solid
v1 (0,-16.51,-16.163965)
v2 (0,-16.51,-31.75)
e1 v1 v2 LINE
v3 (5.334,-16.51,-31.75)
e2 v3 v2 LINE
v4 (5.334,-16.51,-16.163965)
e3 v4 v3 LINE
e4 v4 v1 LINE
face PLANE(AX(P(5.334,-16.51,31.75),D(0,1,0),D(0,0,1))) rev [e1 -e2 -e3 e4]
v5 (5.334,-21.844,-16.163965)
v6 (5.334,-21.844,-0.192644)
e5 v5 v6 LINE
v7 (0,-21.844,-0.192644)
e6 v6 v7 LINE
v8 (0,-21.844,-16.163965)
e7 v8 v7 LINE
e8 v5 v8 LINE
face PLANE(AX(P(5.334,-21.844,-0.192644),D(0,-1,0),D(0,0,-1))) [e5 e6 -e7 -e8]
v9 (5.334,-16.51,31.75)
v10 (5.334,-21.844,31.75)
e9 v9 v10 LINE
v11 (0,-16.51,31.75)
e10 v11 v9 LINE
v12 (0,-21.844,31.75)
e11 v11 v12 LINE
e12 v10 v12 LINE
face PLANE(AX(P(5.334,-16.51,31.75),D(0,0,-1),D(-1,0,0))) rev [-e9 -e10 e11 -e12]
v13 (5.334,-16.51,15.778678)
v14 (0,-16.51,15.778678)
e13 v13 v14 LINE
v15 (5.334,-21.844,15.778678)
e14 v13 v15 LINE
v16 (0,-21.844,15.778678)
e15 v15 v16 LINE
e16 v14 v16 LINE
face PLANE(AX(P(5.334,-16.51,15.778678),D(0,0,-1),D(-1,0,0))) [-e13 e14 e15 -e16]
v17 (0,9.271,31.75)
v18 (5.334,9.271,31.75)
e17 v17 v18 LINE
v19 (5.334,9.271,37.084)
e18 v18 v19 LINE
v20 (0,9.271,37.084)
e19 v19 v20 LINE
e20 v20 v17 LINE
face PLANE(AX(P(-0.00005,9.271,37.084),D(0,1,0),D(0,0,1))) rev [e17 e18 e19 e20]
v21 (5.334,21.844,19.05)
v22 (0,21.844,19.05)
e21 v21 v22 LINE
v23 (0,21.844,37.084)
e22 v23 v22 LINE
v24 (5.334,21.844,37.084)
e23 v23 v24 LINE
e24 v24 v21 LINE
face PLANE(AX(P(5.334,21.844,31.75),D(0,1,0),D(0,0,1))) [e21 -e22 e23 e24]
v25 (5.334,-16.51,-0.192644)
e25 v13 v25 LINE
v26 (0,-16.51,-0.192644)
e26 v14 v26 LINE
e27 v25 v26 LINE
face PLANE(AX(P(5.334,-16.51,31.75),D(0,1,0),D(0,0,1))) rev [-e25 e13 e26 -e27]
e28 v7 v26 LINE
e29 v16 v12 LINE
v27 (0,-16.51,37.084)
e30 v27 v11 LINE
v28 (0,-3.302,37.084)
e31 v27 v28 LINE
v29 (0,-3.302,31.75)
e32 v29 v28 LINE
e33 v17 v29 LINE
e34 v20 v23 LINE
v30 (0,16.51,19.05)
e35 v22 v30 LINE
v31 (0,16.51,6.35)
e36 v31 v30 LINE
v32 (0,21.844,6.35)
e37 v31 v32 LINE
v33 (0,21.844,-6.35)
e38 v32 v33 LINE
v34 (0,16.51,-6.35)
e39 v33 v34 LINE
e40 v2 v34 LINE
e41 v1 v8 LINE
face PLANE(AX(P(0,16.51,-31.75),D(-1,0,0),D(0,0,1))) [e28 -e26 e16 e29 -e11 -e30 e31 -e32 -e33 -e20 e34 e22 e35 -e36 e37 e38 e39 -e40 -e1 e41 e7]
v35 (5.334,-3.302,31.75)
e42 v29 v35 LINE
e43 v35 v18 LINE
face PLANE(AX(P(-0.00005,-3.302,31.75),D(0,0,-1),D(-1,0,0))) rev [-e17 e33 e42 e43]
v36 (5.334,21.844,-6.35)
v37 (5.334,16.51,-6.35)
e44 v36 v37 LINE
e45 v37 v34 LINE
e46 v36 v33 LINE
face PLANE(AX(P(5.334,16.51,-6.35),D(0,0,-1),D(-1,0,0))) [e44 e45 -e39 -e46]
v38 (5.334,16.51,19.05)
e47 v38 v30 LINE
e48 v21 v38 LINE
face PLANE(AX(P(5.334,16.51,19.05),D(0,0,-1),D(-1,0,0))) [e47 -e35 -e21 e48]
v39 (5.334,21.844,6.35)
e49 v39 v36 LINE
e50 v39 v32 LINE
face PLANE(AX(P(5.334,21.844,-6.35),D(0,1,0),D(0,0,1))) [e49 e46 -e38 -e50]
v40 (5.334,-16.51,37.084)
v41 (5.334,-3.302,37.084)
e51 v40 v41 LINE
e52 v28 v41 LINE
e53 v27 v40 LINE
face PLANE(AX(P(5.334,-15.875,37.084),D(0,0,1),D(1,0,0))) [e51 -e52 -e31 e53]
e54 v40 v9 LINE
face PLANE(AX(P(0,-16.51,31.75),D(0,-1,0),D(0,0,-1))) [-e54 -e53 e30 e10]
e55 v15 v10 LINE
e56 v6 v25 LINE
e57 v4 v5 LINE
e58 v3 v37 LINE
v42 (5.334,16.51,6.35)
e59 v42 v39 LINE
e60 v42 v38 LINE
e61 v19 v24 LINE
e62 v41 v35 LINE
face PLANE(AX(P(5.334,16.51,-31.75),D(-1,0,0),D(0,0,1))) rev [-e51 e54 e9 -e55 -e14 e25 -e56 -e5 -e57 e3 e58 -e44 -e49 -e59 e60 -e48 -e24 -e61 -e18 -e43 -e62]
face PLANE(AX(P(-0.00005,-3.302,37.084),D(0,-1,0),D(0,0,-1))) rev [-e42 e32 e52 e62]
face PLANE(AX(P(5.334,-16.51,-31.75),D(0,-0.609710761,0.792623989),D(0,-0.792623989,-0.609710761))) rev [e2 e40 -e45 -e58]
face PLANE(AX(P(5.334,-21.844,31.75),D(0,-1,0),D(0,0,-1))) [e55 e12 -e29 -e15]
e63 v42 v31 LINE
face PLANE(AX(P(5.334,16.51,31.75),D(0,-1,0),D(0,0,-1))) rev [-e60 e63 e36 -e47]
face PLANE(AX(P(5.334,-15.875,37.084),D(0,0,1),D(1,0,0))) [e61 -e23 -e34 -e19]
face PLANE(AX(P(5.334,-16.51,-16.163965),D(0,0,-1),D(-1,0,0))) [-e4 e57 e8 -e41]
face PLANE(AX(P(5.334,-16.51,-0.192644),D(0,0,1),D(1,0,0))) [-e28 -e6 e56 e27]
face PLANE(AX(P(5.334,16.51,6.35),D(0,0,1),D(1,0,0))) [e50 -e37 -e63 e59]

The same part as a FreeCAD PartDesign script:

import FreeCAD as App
import Part
import Sketcher

V = App.Vector
Q = App.Units.Quantity


def add_polygon(sketch, points):
    """Adds a closed chain of lines whose ends are joined by coincident constraints."""
    first, n = sketch.GeometryCount, len(points)
    for a, b in zip(points, points[1:] + points[:1]):
        sketch.addGeometry(Part.LineSegment(App.Vector(*a, 0), App.Vector(*b, 0)), False)
    for i in range(n):
        sketch.addConstraint(Sketcher.Constraint("Coincident", first + i, 2, first + (i + 1) % n, 1))

doc = App.newDocument("Part")
params = doc.addObject("Spreadsheet::Sheet", "Params")
for row, (alias, value) in enumerate([
    ("sketch1_width", "1.3 in"),
    ("sketch1_height", "2.5 in"),
    ("pad1_length", "0.21 in"),
    ("sketch2_height", "1 in"),
    ("sketch2_width", "1.3 in"),
    ("sketch3_height", "0.5 in"),
    ("sketch3_width", "0.21 in"),
    ("sketch4_width", "1.46 in"),
    ("sketch4_height", "0.21 in"),
    ("pad3_length", "0.21 in"),
    ("sketch5_height", "0.21 in"),
    ("sketch5_width", "0.495 in"),
    ("sketch6_height", "0.21 in"),
    ("sketch6_width", "0.025 in"),
    ("pad4_length", "0.21 in"),
    ("sketch7_height", "0.21 in"),
    ("sketch7_width", "0.025 in"),
    ("pad5_length", "0.21 in"),
], start=1):
    params.set(f"A{row}", alias)
    params.set(f"B{row}", "=" + value)
    params.setAlias(f"B{row}", alias)

body = doc.addObject("PartDesign::Body", "Body")

sketch1 = doc.addObject("Sketcher::SketchObject", "Sketch")
body.addObject(sketch1)
sketch1.AttachmentSupport = (doc.YZ_Plane, [""])
sketch1.MapMode = "FlatFace"
add_polygon(sketch1, [(17, 32), (-17, 32), (-17, -32), (17, -32)])
sketch1.addConstraint(Sketcher.Constraint("Horizontal", 0))
sketch1.addConstraint(Sketcher.Constraint("Vertical", 1))
sketch1.addConstraint(Sketcher.Constraint("Horizontal", 2))
sketch1.addConstraint(Sketcher.Constraint("Vertical", 3))
sketch1.addConstraint(Sketcher.Constraint("Symmetric", 0, 2, 2, 2, -1, 1))
sketch1.addConstraint(Sketcher.Constraint("DistanceX", 0, 2, 0, 1, Q("1.3 in")))
sketch1.addConstraint(Sketcher.Constraint("DistanceY", 1, 2, 1, 1, Q("2.5 in")))
sketch1.setExpression("Constraints[9]", "Params.sketch1_width")
sketch1.setExpression("Constraints[10]", "Params.sketch1_height")
pad1 = doc.addObject("PartDesign::Pad", "Pad")
body.addObject(pad1)
pad1.Profile = sketch1
pad1.setExpression("Length", "Params.pad1_length")

sketch2 = doc.addObject("Sketcher::SketchObject", "Sketch001")
body.addObject(sketch2)
sketch2.AttachmentSupport = (doc.YZ_Plane, [""])
sketch2.MapMode = "FlatFace"
add_polygon(sketch2, [(17, -32), (-17, -32), (17, -6)])
sketch2.addConstraint(Sketcher.Constraint("Horizontal", 0))
sketch2.addConstraint(Sketcher.Constraint("Vertical", 2))
sketch2.addConstraint(Sketcher.Constraint("DistanceY", 2, 2, 2, 1, Q("1 in")))
sketch2.addConstraint(Sketcher.Constraint("DistanceX", 0, 2, 0, 1, Q("1.3 in")))
sketch2.addConstraint(Sketcher.Constraint("DistanceX", 0, 2, -1, 1, Q("0.65 in")))
sketch2.addConstraint(Sketcher.Constraint("DistanceY", 0, 2, -1, 1, Q("1.25 in")))
sketch2.setExpression("Constraints[5]", "Params.sketch2_height")
sketch2.setExpression("Constraints[6]", "Params.sketch2_width")
pocket1 = doc.addObject("PartDesign::Pocket", "Pocket")
body.addObject(pocket1)
pocket1.Profile = sketch2
pocket1.Type = "ThroughAll"
pocket1.Reversed = True

sketch3 = doc.addObject("Sketcher::SketchObject", "Sketch002")
body.addObject(sketch3)
sketch3.AttachmentSupport = (doc.YZ_Plane, [""])
sketch3.MapMode = "FlatFace"
add_polygon(sketch3, [(22, 19), (17, 19), (17, 32), (22, 32)])
add_polygon(sketch3, [(22, -6), (17, -6), (17, 6), (22, 6)])
add_polygon(sketch3, [(-17, 16), (-22, 16), (-22, 32), (-17, 32)])
add_polygon(sketch3, [(-17, -16), (-22, -16), (-22, 0), (-17, 0)])
sketch3.addConstraint(Sketcher.Constraint("Horizontal", 0))
sketch3.addConstraint(Sketcher.Constraint("Vertical", 1))
sketch3.addConstraint(Sketcher.Constraint("Horizontal", 2))
sketch3.addConstraint(Sketcher.Constraint("Vertical", 3))
sketch3.addConstraint(Sketcher.Constraint("Horizontal", 4))
sketch3.addConstraint(Sketcher.Constraint("Vertical", 5))
sketch3.addConstraint(Sketcher.Constraint("Horizontal", 6))
sketch3.addConstraint(Sketcher.Constraint("Vertical", 7))
sketch3.addConstraint(Sketcher.Constraint("Horizontal", 8))
sketch3.addConstraint(Sketcher.Constraint("Vertical", 9))
sketch3.addConstraint(Sketcher.Constraint("Horizontal", 10))
sketch3.addConstraint(Sketcher.Constraint("Vertical", 11))
sketch3.addConstraint(Sketcher.Constraint("Horizontal", 12))
sketch3.addConstraint(Sketcher.Constraint("Vertical", 13))
sketch3.addConstraint(Sketcher.Constraint("Horizontal", 14))
sketch3.addConstraint(Sketcher.Constraint("Vertical", 15))
sketch3.addConstraint(Sketcher.Constraint("Symmetric", 2, 2, 9, 2, -2))
sketch3.addConstraint(Sketcher.Constraint("Vertical", 1, 2, 4, 2))
sketch3.addConstraint(Sketcher.Constraint("Vertical", 3, 2, 6, 2))
sketch3.addConstraint(Sketcher.Constraint("Vertical", 9, 2, 12, 2))
sketch3.addConstraint(Sketcher.Constraint("Vertical", 11, 2, 14, 2))
sketch3.addConstraint(Sketcher.Constraint("Equal", 6, 8))
sketch3.addConstraint(Sketcher.Constraint("Equal", 3, 5))
sketch3.addConstraint(Sketcher.Constraint("Equal", 11, 13))
sketch3.addConstraint(Sketcher.Constraint("DistanceY", 1, 1, 1, 2, Q("0.5 in")))
sketch3.addConstraint(Sketcher.Constraint("DistanceY", 4, 2, 0, 2, Q("1 in")))
sketch3.addConstraint(Sketcher.Constraint("DistanceX", 0, 2, 0, 1, Q("0.21 in")))
sketch3.addConstraint(Sketcher.Constraint("DistanceX", 10, 2, 1, 2, Q("1.3 in")))
sketch3.addConstraint(Sketcher.Constraint("DistanceY", -1, 1, 0, 2, Q("0.75 in")))
sketch3.addConstraint(Sketcher.Constraint("DistanceY", 9, 1, 9, 2, 15.971322))
sketch3.addConstraint(Sketcher.Constraint("DistanceY", 13, 2, 8, 2, 15.971322))
sketch3.setExpression("Constraints[40]", "Params.sketch3_height")
sketch3.setExpression("Constraints[42]", "Params.sketch3_width")
pad2 = doc.addObject("PartDesign::Pad", "Pad001")
body.addObject(pad2)
pad2.Profile = sketch3
pad2.Type = "UpToLast"

sketch4 = doc.addObject("Sketcher::SketchObject", "Sketch003")
body.addObject(sketch4)
sketch4.AttachmentSupport = (doc.YZ_Plane, [""])
sketch4.MapMode = "FlatFace"
add_polygon(sketch4, [(21, 32), (-16, 32), (-16, 37), (21, 37)])
sketch4.addConstraint(Sketcher.Constraint("Horizontal", 0))
sketch4.addConstraint(Sketcher.Constraint("Vertical", 1))
sketch4.addConstraint(Sketcher.Constraint("Horizontal", 2))
sketch4.addConstraint(Sketcher.Constraint("Vertical", 3))
sketch4.addConstraint(Sketcher.Constraint("DistanceX", 0, 2, 0, 1, Q("1.46 in")))
sketch4.addConstraint(Sketcher.Constraint("DistanceY", 1, 1, 1, 2, Q("0.21 in")))
sketch4.addConstraint(Sketcher.Constraint("DistanceY", -1, 1, 0, 2, Q("1.25 in")))
sketch4.addConstraint(Sketcher.Constraint("DistanceX", 0, 2, -1, 1, Q("0.625 in")))
sketch4.setExpression("Constraints[8]", "Params.sketch4_width")
sketch4.setExpression("Constraints[9]", "Params.sketch4_height")
pad3 = doc.addObject("PartDesign::Pad", "Pad002")
body.addObject(pad3)
pad3.Profile = sketch4
pad3.setExpression("Length", "Params.pad3_length")

sketch5 = doc.addObject("Sketcher::SketchObject", "Sketch004")
body.addObject(sketch5)
sketch5.AttachmentSupport = (doc.YZ_Plane, [""])
sketch5.MapMode = "FlatFace"
sketch5.AttachmentOffset = App.Placement(V(0, 0, 0.21 * 25.4), App.Rotation())
add_polygon(sketch5, [(9, 37), (-3, 37), (-3, 32), (9, 32)])
sketch5.addConstraint(Sketcher.Constraint("Horizontal", 0))
sketch5.addConstraint(Sketcher.Constraint("Vertical", 1))
sketch5.addConstraint(Sketcher.Constraint("Horizontal", 2))
sketch5.addConstraint(Sketcher.Constraint("Vertical", 3))
sketch5.addConstraint(Sketcher.Constraint("DistanceY", 1, 2, 1, 1, Q("0.21 in")))
sketch5.addConstraint(Sketcher.Constraint("DistanceX", 0, 2, 0, 1, Q("0.495 in")))
sketch5.addConstraint(Sketcher.Constraint("DistanceX", 0, 2, -1, 1, Q("0.13 in")))
sketch5.addConstraint(Sketcher.Constraint("DistanceY", -1, 1, 0, 2, Q("1.46 in")))
sketch5.setExpression("Constraints[8]", "Params.sketch5_height")
sketch5.setExpression("Constraints[9]", "Params.sketch5_width")
pocket2 = doc.addObject("PartDesign::Pocket", "Pocket001")
body.addObject(pocket2)
pocket2.Profile = sketch5
pocket2.Type = "ThroughAll"

sketch6 = doc.addObject("Sketcher::SketchObject", "Sketch005")
body.addObject(sketch6)
sketch6.AttachmentSupport = (doc.YZ_Plane, [""])
sketch6.MapMode = "FlatFace"
sketch6.AttachmentOffset = App.Placement(V(0, 0, 0.21 * 25.4), App.Rotation())
add_polygon(sketch6, [(21.8, 37.1), (21.2, 37.1), (21.2, 31.8), (21.8, 31.8)])
sketch6.addConstraint(Sketcher.Constraint("Horizontal", 0))
sketch6.addConstraint(Sketcher.Constraint("Vertical", 1))
sketch6.addConstraint(Sketcher.Constraint("Horizontal", 2))
sketch6.addConstraint(Sketcher.Constraint("Vertical", 3))
sketch6.addConstraint(Sketcher.Constraint("DistanceY", 1, 2, 1, 1, Q("0.21 in")))
sketch6.addConstraint(Sketcher.Constraint("DistanceX", 0, 2, 0, 1, Q("0.025 in")))
sketch6.addConstraint(Sketcher.Constraint("DistanceY", -1, 1, 0, 2, Q("1.46 in")))
sketch6.addConstraint(Sketcher.Constraint("DistanceX", -1, 1, 2, 2, Q("0.86 in")))
sketch6.setExpression("Constraints[8]", "Params.sketch6_height")
sketch6.setExpression("Constraints[9]", "Params.sketch6_width")
pad4 = doc.addObject("PartDesign::Pad", "Pad003")
body.addObject(pad4)
pad4.Profile = sketch6
pad4.setExpression("Length", "Params.pad4_length")
pad4.Reversed = True

sketch7 = doc.addObject("Sketcher::SketchObject", "Sketch006")
body.addObject(sketch7)
sketch7.AttachmentSupport = (doc.YZ_Plane, [""])
sketch7.MapMode = "FlatFace"
sketch7.AttachmentOffset = App.Placement(V(0, 0, 0.21 * 25.4), App.Rotation())
add_polygon(sketch7, [(-15.9, 37.1), (-16.5, 37.1), (-16.5, 31.8), (-15.9, 31.8)])
sketch7.addConstraint(Sketcher.Constraint("Horizontal", 0))
sketch7.addConstraint(Sketcher.Constraint("Vertical", 1))
sketch7.addConstraint(Sketcher.Constraint("Horizontal", 2))
sketch7.addConstraint(Sketcher.Constraint("Vertical", 3))
sketch7.addConstraint(Sketcher.Constraint("DistanceY", 1, 2, 1, 1, Q("0.21 in")))
sketch7.addConstraint(Sketcher.Constraint("DistanceX", 0, 2, 0, 1, Q("0.025 in")))
sketch7.addConstraint(Sketcher.Constraint("DistanceX", 0, 2, -1, 1, Q("0.65 in")))
sketch7.addConstraint(Sketcher.Constraint("DistanceY", -1, 1, 0, 2, Q("1.46 in")))
sketch7.setExpression("Constraints[8]", "Params.sketch7_height")
sketch7.setExpression("Constraints[9]", "Params.sketch7_width")
pad5 = doc.addObject("PartDesign::Pad", "Pad004")
body.addObject(pad5)
pad5.Profile = sketch7
pad5.setExpression("Length", "Params.pad5_length")
pad5.Reversed = True

doc.recompute()
